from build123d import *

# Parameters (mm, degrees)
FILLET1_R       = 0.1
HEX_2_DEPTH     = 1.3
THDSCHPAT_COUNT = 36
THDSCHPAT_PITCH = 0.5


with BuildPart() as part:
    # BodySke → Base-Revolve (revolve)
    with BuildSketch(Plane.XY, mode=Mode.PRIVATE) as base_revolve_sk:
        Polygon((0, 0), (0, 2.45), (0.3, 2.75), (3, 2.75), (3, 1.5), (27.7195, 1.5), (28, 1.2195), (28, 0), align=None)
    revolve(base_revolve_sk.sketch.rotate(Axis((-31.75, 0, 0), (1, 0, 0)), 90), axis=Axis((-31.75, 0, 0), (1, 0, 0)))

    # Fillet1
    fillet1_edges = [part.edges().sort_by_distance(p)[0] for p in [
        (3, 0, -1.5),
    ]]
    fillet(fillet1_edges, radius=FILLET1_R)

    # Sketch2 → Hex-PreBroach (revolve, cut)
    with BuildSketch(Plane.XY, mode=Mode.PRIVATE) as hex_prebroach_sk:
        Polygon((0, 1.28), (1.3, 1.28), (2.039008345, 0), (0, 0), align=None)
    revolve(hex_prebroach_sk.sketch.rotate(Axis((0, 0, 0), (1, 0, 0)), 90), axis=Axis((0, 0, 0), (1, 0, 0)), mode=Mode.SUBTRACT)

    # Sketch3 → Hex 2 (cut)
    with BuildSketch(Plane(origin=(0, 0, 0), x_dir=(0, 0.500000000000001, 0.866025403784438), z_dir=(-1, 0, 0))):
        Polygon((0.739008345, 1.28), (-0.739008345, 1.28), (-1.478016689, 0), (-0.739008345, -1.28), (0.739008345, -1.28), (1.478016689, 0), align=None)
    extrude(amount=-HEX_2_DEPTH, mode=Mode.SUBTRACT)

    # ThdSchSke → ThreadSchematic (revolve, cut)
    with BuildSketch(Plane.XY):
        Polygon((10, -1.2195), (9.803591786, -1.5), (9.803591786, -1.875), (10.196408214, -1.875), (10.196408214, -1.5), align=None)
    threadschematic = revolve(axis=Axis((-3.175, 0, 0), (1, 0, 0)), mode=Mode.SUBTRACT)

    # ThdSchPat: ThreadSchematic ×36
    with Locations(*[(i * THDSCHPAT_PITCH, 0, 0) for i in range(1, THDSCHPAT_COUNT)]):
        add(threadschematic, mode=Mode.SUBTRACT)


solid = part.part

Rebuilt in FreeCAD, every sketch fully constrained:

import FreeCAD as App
import Part
import Sketcher
Q = App.Units.Quantity


def edges_at(feature, points):
    """Names of the edges that pass closest to the given points."""
    edges = feature.Shape.Edges
    near = lambda p: min(range(len(edges)), key=lambda i: edges[i].distToShape(Part.Vertex(*p))[0])
    return sorted({f"Edge{near(p) + 1}" for p in points})


def add_polygon(sketch, points):
    """Adds a closed chain of lines whose ends are joined by coincident constraints."""
    first, n = sketch.GeometryCount, len(points)
    for a, b in zip(points, points[1:] + points[:1]):
        sketch.addGeometry(Part.LineSegment(App.Vector(*a, 0), App.Vector(*b, 0)), False)
    for i in range(n):
        sketch.addConstraint(Sketcher.Constraint("Coincident", first + i, 2, first + (i + 1) % n, 1))

doc = App.newDocument("Part")
body = doc.addObject("PartDesign::Body", "Body")

# Sketch on XY plane
sketch1 = doc.addObject("Sketcher::SketchObject", "Sketch")
body.addObject(sketch1)
sketch1.AttachmentSupport = (doc.XY_Plane, [""])
sketch1.MapMode = "FlatFace"
add_polygon(sketch1, [(0, 2.45), (0, 0), (28, 0), (28, 1.22), (27.72, 1.5), (3, 1.5), (3, 2.75), (0.3, 2.75)])  # lines 0-7
sketch1.addConstraint([
    Sketcher.Constraint("Vertical", 0),
    Sketcher.Constraint("Horizontal", 1),
    Sketcher.Constraint("Vertical", 2),
    Sketcher.Constraint("Horizontal", 4),
    Sketcher.Constraint("Vertical", 5),
    Sketcher.Constraint("Horizontal", 6),
    Sketcher.Constraint("Coincident", 0, 2, -1, 1),
    Sketcher.Constraint("Perpendicular", 3, 7),
    Sketcher.Constraint("DistanceX", 1, 1, 1, 2, 28.0),
    Sketcher.Constraint("Angle", 3, Q("135 deg")),
    Sketcher.Constraint("DistanceX", 6, 2, 6, 1, 2.7),
    Sketcher.Constraint("DistanceX", -1, 1, 4, 2, 3.0),
    Sketcher.Constraint("DistanceY", 0, 2, 0, 1, 2.45),
    Sketcher.Constraint("DistanceY", 5, 1, 5, 2, 1.25),
    Sketcher.Constraint("DistanceX", 4, 2, 4, 1, 24.7195),
])
revolution = doc.addObject("PartDesign::Revolution", "Revolution")
body.addObject(revolution)
revolution.Profile = sketch1
revolution.ReferenceAxis = (sketch1, ["H_Axis"])
revolution.Angle = 360
doc.recompute()

fillet = doc.addObject("PartDesign::Fillet", "Fillet")
body.addObject(fillet)
fillet.Base = (revolution, edges_at(revolution, [(3, 0, -1.5)]))
fillet.Radius = 0.1

# Sketch on XY plane
sketch2 = doc.addObject("Sketcher::SketchObject", "Sketch001")
body.addObject(sketch2)
sketch2.AttachmentSupport = (doc.XY_Plane, [""])
sketch2.MapMode = "FlatFace"
add_polygon(sketch2, [(1.3, 1.3), (0, 1.3), (0, 0), (2, 0)])  # lines 0-3
sketch2.addConstraint([
    Sketcher.Constraint("Horizontal", 0),
    Sketcher.Constraint("Vertical", 1),
    Sketcher.Constraint("Horizontal", 2),
    Sketcher.Constraint("Coincident", 1, 2, -1, 1),
    Sketcher.Constraint("Angle", 3, Q("120 deg")),
    Sketcher.Constraint("DistanceX", 0, 2, 0, 1, 1.3),
    Sketcher.Constraint("DistanceY", 1, 2, 1, 1, 1.28),
])
groove = doc.addObject("PartDesign::Groove", "Groove")
body.addObject(groove)
groove.Profile = sketch2
groove.ReferenceAxis = (sketch2, ["H_Axis"])
groove.Angle = 360

# Sketch on YZ plane
sketch3 = doc.addObject("Sketcher::SketchObject", "Sketch002")
body.addObject(sketch3)
sketch3.AttachmentSupport = (doc.YZ_Plane, [""])
sketch3.MapMode = "FlatFace"
add_polygon(sketch3, [(1.5, 0), (0.7, -1.3), (-0.7, -1.3), (-1.5, 0), (-0.7, 1.3), (0.7, 1.3)])  # lines 0-5
sketch3.addConstraint([
    Sketcher.Constraint("Horizontal", 1),
    Sketcher.Constraint("Horizontal", 4),
    Sketcher.Constraint("Symmetric", 0, 2, 3, 2, -1, 1),
    Sketcher.Constraint("Symmetric", 2, 2, 5, 2, -1, 1),
    Sketcher.Constraint("PointOnObject", 2, 2, -1),
    Sketcher.Constraint("Parallel", 2, 5),
    Sketcher.Constraint("Vertical", 1, 2, 3, 2),
    Sketcher.Constraint("Angle", 0, Q("-120 deg")),
    Sketcher.Constraint("DistanceY", 0, 2, -1, 1, 1.28),
    Sketcher.Constraint("DistanceX", 1, 2, 1, 1, 1.478017),
])
pocket1 = doc.addObject("PartDesign::Pocket", "Pocket")
body.addObject(pocket1)
pocket1.Profile = sketch3
pocket1.Length = 1.3
pocket1.Reversed = True

# Sketch on XY plane
sketch4 = doc.addObject("Sketcher::SketchObject", "Sketch003")
body.addObject(sketch4)
sketch4.AttachmentSupport = (doc.XY_Plane, [""])
sketch4.MapMode = "FlatFace"
add_polygon(sketch4, [(10, -1.22), (9.8, -1.5), (9.8, -1.88), (10.2, -1.88), (10.2, -1.5)])  # lines 0-4
sketch4.addConstraint([
    Sketcher.Constraint("Vertical", 1),
    Sketcher.Constraint("Horizontal", 2),
    Sketcher.Constraint("Vertical", 3),
    Sketcher.Constraint("Horizontal", 0, 2, 3, 2),
    Sketcher.Constraint("Equal", 0, 4),
    Sketcher.Constraint("Angle", 0, Q("-125 deg")),
    Sketcher.Constraint("DistanceX", -1, 1, 4, 2, 10.0),
    Sketcher.Constraint("DistanceY", 0, 2, -1, 1, 1.5),
    Sketcher.Constraint("DistanceY", 1, 2, 1, 1, 0.375),
    Sketcher.Constraint("DistanceY", 4, 2, -1, 1, 1.2195),
])
groove2 = doc.addObject("PartDesign::Groove", "Groove001")
body.addObject(groove2)
groove2.Profile = sketch4
groove2.ReferenceAxis = (sketch4, ["H_Axis"])
groove2.Angle = 360
doc.recompute()

linearpattern = doc.addObject("PartDesign::LinearPattern", "LinearPattern")
body.addObject(linearpattern)
linearpattern.Originals = [groove2]
linearpattern.Direction = (doc.X_Axis, [""])
linearpattern.Mode = "offset"
linearpattern.Offset = 0.5
linearpattern.Occurrences = 36
body.Tip = linearpattern

doc.recompute()
